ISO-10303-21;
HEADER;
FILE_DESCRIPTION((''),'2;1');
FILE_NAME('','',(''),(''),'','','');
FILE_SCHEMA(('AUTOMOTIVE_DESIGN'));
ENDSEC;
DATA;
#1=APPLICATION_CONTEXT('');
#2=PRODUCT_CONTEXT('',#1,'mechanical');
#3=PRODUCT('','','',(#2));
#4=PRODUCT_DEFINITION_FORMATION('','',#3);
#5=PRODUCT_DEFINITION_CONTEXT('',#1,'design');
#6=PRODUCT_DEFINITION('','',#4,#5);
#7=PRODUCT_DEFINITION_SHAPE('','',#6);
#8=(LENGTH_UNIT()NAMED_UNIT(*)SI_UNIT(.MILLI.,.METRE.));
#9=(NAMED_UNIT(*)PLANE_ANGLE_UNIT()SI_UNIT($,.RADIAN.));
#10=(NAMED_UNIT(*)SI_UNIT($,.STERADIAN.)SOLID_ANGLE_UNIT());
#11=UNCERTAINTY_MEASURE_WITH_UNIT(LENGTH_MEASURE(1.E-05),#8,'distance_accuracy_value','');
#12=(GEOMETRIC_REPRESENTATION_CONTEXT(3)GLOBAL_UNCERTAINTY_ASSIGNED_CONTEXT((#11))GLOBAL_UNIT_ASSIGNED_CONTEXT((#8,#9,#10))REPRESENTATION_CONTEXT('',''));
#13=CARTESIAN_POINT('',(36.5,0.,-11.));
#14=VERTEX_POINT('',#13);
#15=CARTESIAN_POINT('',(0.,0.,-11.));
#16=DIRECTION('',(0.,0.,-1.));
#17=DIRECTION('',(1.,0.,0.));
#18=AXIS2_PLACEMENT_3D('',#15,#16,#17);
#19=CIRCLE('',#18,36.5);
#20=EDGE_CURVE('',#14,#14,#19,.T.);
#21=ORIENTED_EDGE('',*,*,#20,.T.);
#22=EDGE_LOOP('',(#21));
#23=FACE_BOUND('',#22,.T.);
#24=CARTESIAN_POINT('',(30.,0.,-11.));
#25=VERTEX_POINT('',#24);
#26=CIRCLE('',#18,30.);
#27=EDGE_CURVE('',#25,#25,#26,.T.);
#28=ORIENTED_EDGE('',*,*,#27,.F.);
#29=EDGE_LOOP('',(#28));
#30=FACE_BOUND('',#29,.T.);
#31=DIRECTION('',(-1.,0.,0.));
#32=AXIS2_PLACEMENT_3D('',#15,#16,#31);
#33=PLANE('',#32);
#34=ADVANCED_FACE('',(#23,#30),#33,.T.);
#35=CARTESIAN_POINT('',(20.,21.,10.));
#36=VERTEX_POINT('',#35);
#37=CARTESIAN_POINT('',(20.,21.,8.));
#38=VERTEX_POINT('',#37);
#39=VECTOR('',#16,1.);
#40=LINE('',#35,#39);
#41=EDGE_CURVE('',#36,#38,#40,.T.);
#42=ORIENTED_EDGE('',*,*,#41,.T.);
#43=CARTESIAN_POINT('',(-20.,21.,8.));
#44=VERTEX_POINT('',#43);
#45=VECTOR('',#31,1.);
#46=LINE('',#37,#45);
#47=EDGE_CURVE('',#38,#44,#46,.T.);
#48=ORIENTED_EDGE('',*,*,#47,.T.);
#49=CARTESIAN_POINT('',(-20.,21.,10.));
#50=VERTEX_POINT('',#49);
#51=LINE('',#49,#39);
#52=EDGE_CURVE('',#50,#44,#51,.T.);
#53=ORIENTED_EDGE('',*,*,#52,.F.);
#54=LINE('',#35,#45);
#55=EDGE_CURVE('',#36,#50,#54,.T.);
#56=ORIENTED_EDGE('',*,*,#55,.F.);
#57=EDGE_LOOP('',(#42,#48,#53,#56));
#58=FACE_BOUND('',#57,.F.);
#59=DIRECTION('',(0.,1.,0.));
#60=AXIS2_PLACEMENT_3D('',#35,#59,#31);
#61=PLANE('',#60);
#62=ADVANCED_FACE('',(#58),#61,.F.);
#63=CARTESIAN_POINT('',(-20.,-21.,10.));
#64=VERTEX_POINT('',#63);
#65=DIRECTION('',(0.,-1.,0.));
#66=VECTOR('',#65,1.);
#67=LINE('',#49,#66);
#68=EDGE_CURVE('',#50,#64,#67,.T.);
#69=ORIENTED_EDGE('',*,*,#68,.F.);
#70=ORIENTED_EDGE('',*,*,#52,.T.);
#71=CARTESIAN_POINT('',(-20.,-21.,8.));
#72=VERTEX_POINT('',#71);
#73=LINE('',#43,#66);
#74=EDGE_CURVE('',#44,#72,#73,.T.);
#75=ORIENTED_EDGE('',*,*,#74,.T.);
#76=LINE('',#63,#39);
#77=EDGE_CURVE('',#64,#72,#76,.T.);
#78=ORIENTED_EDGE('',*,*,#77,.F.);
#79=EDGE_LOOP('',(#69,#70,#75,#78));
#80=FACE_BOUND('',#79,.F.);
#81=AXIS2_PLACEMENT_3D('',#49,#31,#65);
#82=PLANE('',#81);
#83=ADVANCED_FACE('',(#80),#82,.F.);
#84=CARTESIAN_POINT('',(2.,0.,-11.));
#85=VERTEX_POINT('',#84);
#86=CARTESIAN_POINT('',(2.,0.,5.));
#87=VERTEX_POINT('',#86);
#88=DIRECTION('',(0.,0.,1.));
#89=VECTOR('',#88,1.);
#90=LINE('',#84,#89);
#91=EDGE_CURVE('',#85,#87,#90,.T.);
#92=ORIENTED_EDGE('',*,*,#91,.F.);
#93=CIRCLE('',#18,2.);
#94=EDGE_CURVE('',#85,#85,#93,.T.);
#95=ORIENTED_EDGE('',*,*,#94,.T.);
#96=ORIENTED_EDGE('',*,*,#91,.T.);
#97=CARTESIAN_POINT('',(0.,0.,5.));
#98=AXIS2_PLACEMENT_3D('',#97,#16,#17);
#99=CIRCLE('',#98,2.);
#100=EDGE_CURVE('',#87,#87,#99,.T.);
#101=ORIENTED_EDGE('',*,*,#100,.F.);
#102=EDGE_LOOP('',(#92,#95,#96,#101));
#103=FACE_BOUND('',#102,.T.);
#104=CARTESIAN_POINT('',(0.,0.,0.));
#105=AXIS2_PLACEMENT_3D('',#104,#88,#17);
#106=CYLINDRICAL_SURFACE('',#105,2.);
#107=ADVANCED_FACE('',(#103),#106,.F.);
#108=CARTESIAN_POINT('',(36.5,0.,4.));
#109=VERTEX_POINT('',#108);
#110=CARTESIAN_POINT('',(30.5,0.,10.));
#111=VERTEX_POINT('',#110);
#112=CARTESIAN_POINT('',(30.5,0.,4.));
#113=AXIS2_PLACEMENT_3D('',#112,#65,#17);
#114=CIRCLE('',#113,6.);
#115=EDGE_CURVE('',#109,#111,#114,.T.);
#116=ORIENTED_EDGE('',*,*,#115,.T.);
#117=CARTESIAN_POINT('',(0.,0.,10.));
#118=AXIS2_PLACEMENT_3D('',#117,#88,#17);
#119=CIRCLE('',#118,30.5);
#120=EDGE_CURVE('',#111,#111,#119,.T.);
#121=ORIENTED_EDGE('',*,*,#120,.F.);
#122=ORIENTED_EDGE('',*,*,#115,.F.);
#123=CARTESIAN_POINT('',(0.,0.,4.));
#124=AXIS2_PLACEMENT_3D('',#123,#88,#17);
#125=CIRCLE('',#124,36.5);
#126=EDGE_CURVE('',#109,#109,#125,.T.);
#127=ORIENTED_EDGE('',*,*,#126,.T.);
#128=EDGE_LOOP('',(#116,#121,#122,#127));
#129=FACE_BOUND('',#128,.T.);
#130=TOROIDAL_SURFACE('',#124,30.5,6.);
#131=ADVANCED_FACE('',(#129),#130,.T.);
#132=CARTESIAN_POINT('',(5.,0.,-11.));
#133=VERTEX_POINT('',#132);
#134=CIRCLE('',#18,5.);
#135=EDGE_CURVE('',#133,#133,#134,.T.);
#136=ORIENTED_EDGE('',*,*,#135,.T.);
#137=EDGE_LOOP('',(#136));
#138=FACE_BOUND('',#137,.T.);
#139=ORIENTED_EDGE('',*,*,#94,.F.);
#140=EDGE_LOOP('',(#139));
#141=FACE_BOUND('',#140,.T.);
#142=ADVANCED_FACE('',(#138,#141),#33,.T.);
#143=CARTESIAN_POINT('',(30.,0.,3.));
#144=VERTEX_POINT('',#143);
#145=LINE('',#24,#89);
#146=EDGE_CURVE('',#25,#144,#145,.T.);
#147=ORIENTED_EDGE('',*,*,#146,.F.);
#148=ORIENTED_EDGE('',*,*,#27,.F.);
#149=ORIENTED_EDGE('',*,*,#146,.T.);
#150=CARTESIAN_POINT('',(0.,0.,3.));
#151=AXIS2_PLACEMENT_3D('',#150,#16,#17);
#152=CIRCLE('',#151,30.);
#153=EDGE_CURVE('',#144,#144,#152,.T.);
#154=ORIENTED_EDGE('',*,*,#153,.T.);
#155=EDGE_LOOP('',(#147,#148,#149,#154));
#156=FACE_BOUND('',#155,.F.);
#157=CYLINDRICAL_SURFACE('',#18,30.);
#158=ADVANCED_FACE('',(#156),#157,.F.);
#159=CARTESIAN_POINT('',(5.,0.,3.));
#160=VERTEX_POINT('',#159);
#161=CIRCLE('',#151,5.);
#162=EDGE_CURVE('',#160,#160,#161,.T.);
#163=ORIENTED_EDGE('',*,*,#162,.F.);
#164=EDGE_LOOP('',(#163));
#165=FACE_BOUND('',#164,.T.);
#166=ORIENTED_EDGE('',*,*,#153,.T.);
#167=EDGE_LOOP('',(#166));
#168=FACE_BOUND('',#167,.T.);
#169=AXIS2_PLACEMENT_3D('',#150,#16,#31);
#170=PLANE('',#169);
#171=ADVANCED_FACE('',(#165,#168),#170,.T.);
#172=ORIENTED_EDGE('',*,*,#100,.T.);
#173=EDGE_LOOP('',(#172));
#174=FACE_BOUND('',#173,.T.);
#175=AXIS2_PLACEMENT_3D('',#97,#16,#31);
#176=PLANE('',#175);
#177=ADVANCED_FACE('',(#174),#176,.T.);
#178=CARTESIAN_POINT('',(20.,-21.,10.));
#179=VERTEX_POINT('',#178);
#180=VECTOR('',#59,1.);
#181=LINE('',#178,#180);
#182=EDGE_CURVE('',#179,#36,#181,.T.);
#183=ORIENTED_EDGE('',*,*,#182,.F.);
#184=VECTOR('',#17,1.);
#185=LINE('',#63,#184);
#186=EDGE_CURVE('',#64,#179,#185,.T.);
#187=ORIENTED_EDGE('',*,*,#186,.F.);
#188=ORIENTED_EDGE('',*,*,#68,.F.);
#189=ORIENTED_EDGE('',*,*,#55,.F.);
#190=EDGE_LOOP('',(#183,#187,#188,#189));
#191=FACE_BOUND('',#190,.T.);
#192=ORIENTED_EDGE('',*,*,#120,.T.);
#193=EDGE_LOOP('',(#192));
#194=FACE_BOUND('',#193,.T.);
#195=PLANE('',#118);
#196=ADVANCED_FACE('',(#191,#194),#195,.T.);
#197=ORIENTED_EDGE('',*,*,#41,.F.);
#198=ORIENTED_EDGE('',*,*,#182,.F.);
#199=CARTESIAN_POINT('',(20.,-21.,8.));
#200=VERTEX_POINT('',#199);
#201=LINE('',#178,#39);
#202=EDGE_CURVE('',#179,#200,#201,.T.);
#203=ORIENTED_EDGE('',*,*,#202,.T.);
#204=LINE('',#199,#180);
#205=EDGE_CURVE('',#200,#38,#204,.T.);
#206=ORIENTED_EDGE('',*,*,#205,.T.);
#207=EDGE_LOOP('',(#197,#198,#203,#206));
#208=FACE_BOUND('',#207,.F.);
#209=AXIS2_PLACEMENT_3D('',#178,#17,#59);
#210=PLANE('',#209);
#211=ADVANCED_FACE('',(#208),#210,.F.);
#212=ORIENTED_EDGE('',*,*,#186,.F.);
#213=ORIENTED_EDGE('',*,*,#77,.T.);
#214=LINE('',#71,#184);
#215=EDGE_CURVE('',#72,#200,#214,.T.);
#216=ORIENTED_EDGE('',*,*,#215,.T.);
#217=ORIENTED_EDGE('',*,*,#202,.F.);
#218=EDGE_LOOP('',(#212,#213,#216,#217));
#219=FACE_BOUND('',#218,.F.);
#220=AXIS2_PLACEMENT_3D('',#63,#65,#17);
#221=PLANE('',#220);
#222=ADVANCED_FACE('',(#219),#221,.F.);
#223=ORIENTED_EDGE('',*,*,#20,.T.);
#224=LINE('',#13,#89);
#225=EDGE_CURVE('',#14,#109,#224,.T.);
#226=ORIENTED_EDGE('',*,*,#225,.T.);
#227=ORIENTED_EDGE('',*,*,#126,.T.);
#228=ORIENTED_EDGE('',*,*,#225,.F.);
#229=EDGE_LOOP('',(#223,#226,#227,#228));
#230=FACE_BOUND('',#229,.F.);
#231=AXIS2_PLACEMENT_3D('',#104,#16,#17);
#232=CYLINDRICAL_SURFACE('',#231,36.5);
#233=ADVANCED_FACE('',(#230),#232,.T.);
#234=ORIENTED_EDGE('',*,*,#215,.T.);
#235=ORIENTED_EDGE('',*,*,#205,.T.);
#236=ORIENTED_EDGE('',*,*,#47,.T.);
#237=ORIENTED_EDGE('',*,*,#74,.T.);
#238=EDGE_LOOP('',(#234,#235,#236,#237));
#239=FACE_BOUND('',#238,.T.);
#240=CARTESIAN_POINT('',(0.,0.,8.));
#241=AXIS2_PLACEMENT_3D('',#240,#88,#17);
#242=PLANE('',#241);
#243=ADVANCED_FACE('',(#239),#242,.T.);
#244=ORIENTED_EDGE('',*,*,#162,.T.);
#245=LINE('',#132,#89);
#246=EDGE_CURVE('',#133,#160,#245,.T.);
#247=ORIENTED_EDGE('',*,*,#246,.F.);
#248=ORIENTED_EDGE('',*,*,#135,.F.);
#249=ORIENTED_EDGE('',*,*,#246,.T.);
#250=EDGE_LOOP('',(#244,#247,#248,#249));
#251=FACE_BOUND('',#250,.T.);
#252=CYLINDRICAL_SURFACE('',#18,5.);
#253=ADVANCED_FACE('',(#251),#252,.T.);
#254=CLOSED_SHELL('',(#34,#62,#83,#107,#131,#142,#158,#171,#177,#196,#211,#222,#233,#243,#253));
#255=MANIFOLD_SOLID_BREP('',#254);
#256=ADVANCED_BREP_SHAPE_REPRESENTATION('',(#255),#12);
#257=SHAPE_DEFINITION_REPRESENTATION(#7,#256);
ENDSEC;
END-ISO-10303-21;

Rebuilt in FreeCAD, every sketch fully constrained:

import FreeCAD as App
import Part
import Sketcher

V = App.Vector


def edges_at(feature, points):
    """Names of the edges that pass closest to the given points."""
    edges = feature.Shape.Edges
    near = lambda p: min(range(len(edges)), key=lambda i: edges[i].distToShape(Part.Vertex(*p))[0])
    return sorted({f"Edge{near(p) + 1}" for p in points})


def add_polygon(sketch, points):
    """Adds a closed chain of lines whose ends are joined by coincident constraints."""
    first, n = sketch.GeometryCount, len(points)
    for a, b in zip(points, points[1:] + points[:1]):
        sketch.addGeometry(Part.LineSegment(App.Vector(*a, 0), App.Vector(*b, 0)), False)
    for i in range(n):
        sketch.addConstraint(Sketcher.Constraint("Coincident", first + i, 2, first + (i + 1) % n, 1))

doc = App.newDocument("Part")
params = doc.addObject("Spreadsheet::Sheet", "Params")
for row, (alias, value) in enumerate([
    ("sketch1_diameter", "73 mm"),
    ("pad1_length", "10 mm"),
    ("sketch2_diameter", "4 mm"),
    ("pocket1_length", "5 mm"),
    ("sketch3_width", "40 mm"),
    ("pocket2_length", "2 mm"),
    ("sketch4_diameter", "73 mm"),
    ("sketch4_diameter2", "4 mm"),
    ("pad2_length", "11 mm"),
    ("sketch5_diameter", "60 mm"),
    ("sketch5_diameter2", "10 mm"),
    ("pocket3_length", "14 mm"),
    ("fillet_radius", "6 mm"),
], start=1):
    params.set(f"A{row}", alias)
    params.set(f"B{row}", "=" + value)
    params.setAlias(f"B{row}", alias)

body = doc.addObject("PartDesign::Body", "Body")

sketch1 = body.newObject("Sketcher::SketchObject", "Sketch")
sketch1.AttachmentSupport = (doc.getObject("XY_Plane"), [""])
sketch1.MapMode = "FlatFace"
sketch1.addGeometry(Part.Circle(V(0, 0, 0), V(0, 0, 1), 36), False)
sketch1.addConstraint([
    Sketcher.Constraint("Coincident", 0, 3, -1, 1),
    Sketcher.Constraint("Diameter", 0, 73.0),
])
sketch1.setExpression("Constraints[1]", "Params.sketch1_diameter")
pad1 = body.newObject("PartDesign::Pad", "Pad")
pad1.Profile = sketch1
pad1.setExpression("Length", "Params.pad1_length")

sketch2 = body.newObject("Sketcher::SketchObject", "Sketch001")
sketch2.AttachmentSupport = (doc.getObject("XY_Plane"), [""])
sketch2.MapMode = "FlatFace"
sketch2.addGeometry(Part.Circle(V(0, 0, 0), V(0, 0, 1), 2), False)
sketch2.addConstraint([
    Sketcher.Constraint("Coincident", 0, 3, -1, 1),
    Sketcher.Constraint("Diameter", 0, 4.0),
])
sketch2.setExpression("Constraints[1]", "Params.sketch2_diameter")
pocket1 = body.newObject("PartDesign::Pocket", "Pocket")
pocket1.Profile = sketch2
pocket1.setExpression("Length", "Params.pocket1_length")
pocket1.Reversed = True

sketch3 = body.newObject("Sketcher::SketchObject", "Sketch002")
sketch3.AttachmentSupport = (doc.getObject("XY_Plane"), [""])
sketch3.MapMode = "FlatFace"
sketch3.AttachmentOffset = App.Placement(V(0, 0, 10), App.Rotation())
add_polygon(sketch3, [(-20, -21), (20, -21), (20, 21), (-20, 21)])
sketch3.addConstraint([
    Sketcher.Constraint("Horizontal", 0),
    Sketcher.Constraint("Vertical", 1),
    Sketcher.Constraint("Horizontal", 2),
    Sketcher.Constraint("Vertical", 3),
    Sketcher.Constraint("Symmetric", 0, 2, 2, 2, -1, 1),
    Sketcher.Constraint("DistanceY", 0, 2, -1, 1, 21.0),
    Sketcher.Constraint("DistanceX", 0, 1, 0, 2, 40.0),
])
sketch3.setExpression("Constraints[10]", "Params.sketch3_width")
pocket2 = body.newObject("PartDesign::Pocket", "Pocket001")
pocket2.Profile = sketch3
pocket2.setExpression("Length", "Params.pocket2_length")

sketch4 = body.newObject("Sketcher::SketchObject", "Sketch003")
sketch4.AttachmentSupport = (doc.getObject("XY_Plane"), [""])
sketch4.MapMode = "FlatFace"
sketch4.addGeometry([
    Part.Circle(V(0, 0, 0), V(0, 0, 1), 36.5),
    Part.Circle(V(0, 0, 0), V(0, 0, 1), 2),
], False)
sketch4.addConstraint([
    Sketcher.Constraint("Coincident", 0, 3, -1, 1),
    Sketcher.Constraint("Coincident", 1, 3, -1, 1),
    Sketcher.Constraint("Diameter", 0, 73.0),
    Sketcher.Constraint("Diameter", 1, 4.0),
])
sketch4.setExpression("Constraints[2]", "Params.sketch4_diameter")
sketch4.setExpression("Constraints[3]", "Params.sketch4_diameter2")
pad2 = body.newObject("PartDesign::Pad", "Pad001")
pad2.Profile = sketch4
pad2.setExpression("Length", "Params.pad2_length")
pad2.Reversed = True

sketch5 = body.newObject("Sketcher::SketchObject", "Sketch004")
sketch5.AttachmentSupport = (doc.getObject("XY_Plane"), [""])
sketch5.MapMode = "FlatFace"
sketch5.AttachmentOffset = App.Placement(V(0, 0, -11), App.Rotation())
sketch5.addGeometry([
    Part.Circle(V(0, 0, 0), V(0, 0, 1), 30),
    Part.Circle(V(0, 0, 0), V(0, 0, 1), 5),
], False)
sketch5.addConstraint([
    Sketcher.Constraint("Coincident", 0, 3, -1, 1),
    Sketcher.Constraint("Coincident", 1, 3, -1, 1),
    Sketcher.Constraint("Diameter", 0, 60.0),
    Sketcher.Constraint("Diameter", 1, 10.0),
])
sketch5.setExpression("Constraints[2]", "Params.sketch5_diameter")
sketch5.setExpression("Constraints[3]", "Params.sketch5_diameter2")
pocket3 = body.newObject("PartDesign::Pocket", "Pocket002")
pocket3.Profile = sketch5
pocket3.setExpression("Length", "Params.pocket3_length")
pocket3.Reversed = True
doc.recompute()

fillet = body.newObject("PartDesign::Fillet", "Fillet")
fillet.Base = (pocket3, edges_at(pocket3, [(-36.5, 0, 10)]))
fillet.setExpression("Radius", "Params.fillet_radius")

doc.recompute()
